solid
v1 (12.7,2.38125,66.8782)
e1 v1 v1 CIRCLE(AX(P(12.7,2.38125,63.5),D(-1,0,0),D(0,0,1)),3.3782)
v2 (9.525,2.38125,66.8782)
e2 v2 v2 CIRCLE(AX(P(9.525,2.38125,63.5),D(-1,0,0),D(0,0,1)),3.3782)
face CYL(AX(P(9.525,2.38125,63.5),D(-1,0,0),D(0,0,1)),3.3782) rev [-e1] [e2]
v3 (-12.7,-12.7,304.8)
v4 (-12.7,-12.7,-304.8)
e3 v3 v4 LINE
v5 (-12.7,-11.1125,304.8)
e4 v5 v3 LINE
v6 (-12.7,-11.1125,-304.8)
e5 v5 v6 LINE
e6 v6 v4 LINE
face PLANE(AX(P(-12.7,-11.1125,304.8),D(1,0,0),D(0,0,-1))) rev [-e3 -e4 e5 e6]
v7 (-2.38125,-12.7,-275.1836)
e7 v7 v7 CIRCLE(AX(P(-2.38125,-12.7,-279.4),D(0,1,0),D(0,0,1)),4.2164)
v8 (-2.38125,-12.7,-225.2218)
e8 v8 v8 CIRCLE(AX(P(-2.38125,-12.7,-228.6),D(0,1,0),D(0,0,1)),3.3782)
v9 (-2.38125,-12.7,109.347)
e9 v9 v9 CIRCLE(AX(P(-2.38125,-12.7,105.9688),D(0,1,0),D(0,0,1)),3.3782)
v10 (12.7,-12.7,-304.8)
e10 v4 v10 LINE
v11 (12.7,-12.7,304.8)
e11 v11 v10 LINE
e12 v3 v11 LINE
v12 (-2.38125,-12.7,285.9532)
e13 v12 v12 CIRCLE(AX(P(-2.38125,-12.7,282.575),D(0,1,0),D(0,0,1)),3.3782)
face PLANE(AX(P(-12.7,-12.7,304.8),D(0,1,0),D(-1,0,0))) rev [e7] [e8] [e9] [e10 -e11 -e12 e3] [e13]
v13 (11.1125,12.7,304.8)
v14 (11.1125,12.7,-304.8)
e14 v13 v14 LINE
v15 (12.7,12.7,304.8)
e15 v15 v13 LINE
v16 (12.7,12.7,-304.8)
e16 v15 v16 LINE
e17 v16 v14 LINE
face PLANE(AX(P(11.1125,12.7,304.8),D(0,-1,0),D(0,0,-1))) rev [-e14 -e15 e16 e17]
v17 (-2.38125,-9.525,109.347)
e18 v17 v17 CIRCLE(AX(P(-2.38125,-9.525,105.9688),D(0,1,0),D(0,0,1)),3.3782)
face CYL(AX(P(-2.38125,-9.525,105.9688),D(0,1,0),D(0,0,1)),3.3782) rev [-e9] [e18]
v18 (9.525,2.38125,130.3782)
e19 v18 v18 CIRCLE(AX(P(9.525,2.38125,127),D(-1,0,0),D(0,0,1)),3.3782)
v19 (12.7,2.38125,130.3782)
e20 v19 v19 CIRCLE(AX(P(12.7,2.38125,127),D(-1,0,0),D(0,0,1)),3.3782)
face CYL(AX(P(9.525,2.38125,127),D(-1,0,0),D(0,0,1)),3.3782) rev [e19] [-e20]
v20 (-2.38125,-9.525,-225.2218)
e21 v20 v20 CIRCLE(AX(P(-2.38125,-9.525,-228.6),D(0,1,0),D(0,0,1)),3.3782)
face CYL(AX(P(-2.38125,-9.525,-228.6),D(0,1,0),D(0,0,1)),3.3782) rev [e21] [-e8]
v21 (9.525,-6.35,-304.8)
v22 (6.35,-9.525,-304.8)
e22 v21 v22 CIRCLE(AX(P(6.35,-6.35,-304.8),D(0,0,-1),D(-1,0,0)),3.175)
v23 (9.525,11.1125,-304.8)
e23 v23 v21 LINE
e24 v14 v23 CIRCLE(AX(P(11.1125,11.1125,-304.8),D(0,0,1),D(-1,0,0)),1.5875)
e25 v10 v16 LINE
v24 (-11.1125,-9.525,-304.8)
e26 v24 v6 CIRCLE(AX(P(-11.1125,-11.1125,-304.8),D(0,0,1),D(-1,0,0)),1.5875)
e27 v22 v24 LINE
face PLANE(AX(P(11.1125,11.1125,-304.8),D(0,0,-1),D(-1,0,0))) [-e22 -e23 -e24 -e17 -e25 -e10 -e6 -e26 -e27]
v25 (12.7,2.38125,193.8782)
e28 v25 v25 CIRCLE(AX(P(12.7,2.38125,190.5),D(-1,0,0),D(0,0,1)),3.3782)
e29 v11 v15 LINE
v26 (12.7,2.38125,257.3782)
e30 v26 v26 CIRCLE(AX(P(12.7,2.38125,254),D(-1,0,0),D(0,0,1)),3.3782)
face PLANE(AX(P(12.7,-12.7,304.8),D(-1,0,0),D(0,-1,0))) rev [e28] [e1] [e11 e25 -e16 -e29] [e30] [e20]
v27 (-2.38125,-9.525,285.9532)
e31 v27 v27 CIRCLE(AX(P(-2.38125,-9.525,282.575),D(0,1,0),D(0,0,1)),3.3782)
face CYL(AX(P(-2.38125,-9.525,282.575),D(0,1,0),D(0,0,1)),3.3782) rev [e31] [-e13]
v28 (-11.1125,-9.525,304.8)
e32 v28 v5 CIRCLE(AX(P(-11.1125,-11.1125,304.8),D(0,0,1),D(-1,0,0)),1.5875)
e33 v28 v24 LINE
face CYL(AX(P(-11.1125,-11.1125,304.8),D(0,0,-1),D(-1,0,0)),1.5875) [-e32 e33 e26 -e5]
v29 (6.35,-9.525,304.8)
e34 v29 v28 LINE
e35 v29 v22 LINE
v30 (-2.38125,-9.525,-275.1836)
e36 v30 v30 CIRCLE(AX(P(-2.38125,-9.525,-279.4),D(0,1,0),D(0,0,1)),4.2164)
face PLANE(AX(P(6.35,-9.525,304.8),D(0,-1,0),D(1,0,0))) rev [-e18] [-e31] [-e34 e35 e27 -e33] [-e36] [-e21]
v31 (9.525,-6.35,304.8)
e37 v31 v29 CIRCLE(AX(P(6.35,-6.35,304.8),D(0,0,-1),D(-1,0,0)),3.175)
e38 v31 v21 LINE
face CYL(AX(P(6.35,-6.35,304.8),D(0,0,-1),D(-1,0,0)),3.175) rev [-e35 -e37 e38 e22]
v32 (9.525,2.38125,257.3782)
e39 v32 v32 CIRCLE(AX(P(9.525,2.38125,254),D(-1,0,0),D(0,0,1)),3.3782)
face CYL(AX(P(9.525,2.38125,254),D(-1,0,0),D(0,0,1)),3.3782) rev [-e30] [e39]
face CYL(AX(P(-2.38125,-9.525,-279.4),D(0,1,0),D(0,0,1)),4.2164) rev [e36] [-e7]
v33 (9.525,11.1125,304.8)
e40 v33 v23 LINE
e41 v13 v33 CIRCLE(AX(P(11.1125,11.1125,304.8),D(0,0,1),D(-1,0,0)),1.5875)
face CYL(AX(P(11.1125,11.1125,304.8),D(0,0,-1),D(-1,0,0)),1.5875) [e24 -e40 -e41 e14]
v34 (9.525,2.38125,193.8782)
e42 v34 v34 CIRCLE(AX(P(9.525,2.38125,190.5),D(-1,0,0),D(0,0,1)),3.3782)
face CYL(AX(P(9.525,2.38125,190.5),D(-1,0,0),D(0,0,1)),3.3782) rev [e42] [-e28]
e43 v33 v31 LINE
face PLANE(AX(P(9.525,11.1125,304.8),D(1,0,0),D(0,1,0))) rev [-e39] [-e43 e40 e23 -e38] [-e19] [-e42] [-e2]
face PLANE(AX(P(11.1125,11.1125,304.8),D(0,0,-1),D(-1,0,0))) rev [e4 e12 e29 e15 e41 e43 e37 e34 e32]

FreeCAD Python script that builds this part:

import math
import FreeCAD as App
import Part
import Sketcher
Q = App.Units.Quantity

doc = App.newDocument("Part")
params = doc.addObject("Spreadsheet::Sheet", "Params")
for row, (alias, value) in enumerate([
    ("sketch1_width", "1 in"),
    ("sketch1_radius", "0.0625 in"),
    ("sketch1_radius2", "0.125 in"),
    ("pad1_length", "24 in"),
    ("sketch2_diameter", "0.266 in"),
    ("hole_diameter", "0.266 in"),
    ("sketch3_diameter", "0.266 in"),
    ("hole2_diameter", "0.266 in"),
    ("sketch4_diameter", "0.332 in"),
    ("hole3_diameter", "0.332 in"),
], start=1):
    params.set(f"A{row}", alias)
    params.set(f"B{row}", "=" + value)
    params.setAlias(f"B{row}", alias)

body = doc.addObject("PartDesign::Body", "Body")

sketch1 = body.newObject("Sketcher::SketchObject", "Sketch")
sketch1.AttachmentSupport = (doc.getObject("XY_Plane"), [""])
sketch1.MapMode = "FlatFace"
sketch1.addGeometry([
    Part.LineSegment(App.Vector(-12.7, -12.7, 0), App.Vector(12.7, -12.7, 0)),
    Part.LineSegment(App.Vector(12.7, -12.7, 0), App.Vector(12.7, 12.7, 0)),
    Part.LineSegment(App.Vector(12.7, 12.7, 0), App.Vector(11.1125, 12.7, 0)),
    Part.ArcOfCircle(Part.Circle(App.Vector(11.1125, 11.1125, 0), App.Vector(0, 0, 1), 1.5875), math.radians(90), math.radians(180)),
    Part.LineSegment(App.Vector(9.525, 11.1125, 0), App.Vector(9.525, -6.35, 0)),
    Part.ArcOfCircle(Part.Circle(App.Vector(6.35, -6.35, 0), App.Vector(0, 0, 1), 3.175), math.radians(-90), math.radians(0)),
    Part.LineSegment(App.Vector(6.35, -9.525, 0), App.Vector(-11.1125, -9.525, 0)),
    Part.ArcOfCircle(Part.Circle(App.Vector(-11.1125, -11.1125, 0), App.Vector(0, 0, 1), 1.5875), math.radians(90), math.radians(180)),
    Part.LineSegment(App.Vector(-12.7, -11.1125, 0), App.Vector(-12.7, -12.7, 0)),
], False)
sketch1.addConstraint([
    Sketcher.Constraint("Coincident", 0, 2, 1, 1),
    Sketcher.Constraint("Coincident", 1, 2, 2, 1),
    Sketcher.Constraint("Tangent", 2, 2, 3, 1),
    Sketcher.Constraint("Tangent", 3, 2, 4, 1),
    Sketcher.Constraint("Tangent", 4, 2, 5, 2),
    Sketcher.Constraint("Tangent", 5, 1, 6, 1),
    Sketcher.Constraint("Tangent", 6, 2, 7, 1),
    Sketcher.Constraint("Tangent", 7, 2, 8, 1),
    Sketcher.Constraint("Coincident", 8, 2, 0, 1),
    Sketcher.Constraint("Horizontal", 0),
    Sketcher.Constraint("Vertical", 1),
    Sketcher.Constraint("Horizontal", 2),
    Sketcher.Constraint("Vertical", 4),
    Sketcher.Constraint("Horizontal", 6),
    Sketcher.Constraint("Vertical", 8),
    Sketcher.Constraint("Equal", 3, 7),
    Sketcher.Constraint("Symmetric", 3, 3, 7, 3, -1, 1),
    Sketcher.Constraint("Symmetric", 1, 2, 8, 2, -1, 1),
    Sketcher.Constraint("Equal", 0, 1),
    Sketcher.Constraint("DistanceX", 0, 1, 0, 2, Q("1 in")),
    Sketcher.Constraint("Radius", 3, Q("0.0625 in")),
    Sketcher.Constraint("Radius", 5, Q("0.125 in")),
])
sketch1.setExpression("Constraints[19]", "Params.sketch1_width")
sketch1.setExpression("Constraints[20]", "Params.sketch1_radius")
sketch1.setExpression("Constraints[21]", "Params.sketch1_radius2")
pad1 = body.newObject("PartDesign::Pad", "Pad")
pad1.Profile = sketch1
pad1.setExpression("Length", "Params.pad1_length")
pad1.Midplane = True

sketch2 = body.newObject("Sketcher::SketchObject", "Sketch001")
sketch2.AttachmentSupport = (doc.getObject("XZ_Plane"), [""])
sketch2.MapMode = "FlatFace"
sketch2.AttachmentOffset = App.Placement(App.Vector(0, 0, 0.375 * 25.4), App.Rotation())
sketch2.addGeometry([
    Part.Circle(App.Vector(-2.38125, 282.575, 0), App.Vector(0, 0, 1), 3.3782),
    Part.Circle(App.Vector(-2.38125, -228.6, 0), App.Vector(0, 0, 1), 3.3782),
    Part.Circle(App.Vector(-2.38125, 105.9688, 0), App.Vector(0, 0, 1), 3.3782),
], False)
sketch2.addConstraint([
    Sketcher.Constraint("Equal", 0, 1),
    Sketcher.Constraint("Equal", 1, 2),
    Sketcher.Constraint("Vertical", 0, 3, 1, 3),
    Sketcher.Constraint("Vertical", 1, 3, 2, 3),
    Sketcher.Constraint("Diameter", 0, Q("0.266 in")),
    Sketcher.Constraint("DistanceY", 1, 3, -1, 1, Q("9 in")),
    Sketcher.Constraint("DistanceX", 0, 3, -1, 1, Q("0.09375 in")),
    Sketcher.Constraint("DistanceY", -1, 1, 0, 3, Q("11.125 in")),
    Sketcher.Constraint("DistanceY", -1, 1, 2, 3, Q("4.172 in")),
])
sketch2.setExpression("Constraints[4]", "Params.sketch2_diameter")
doc.recompute()
hole = body.newObject("PartDesign::Hole", "Hole")
hole.Profile = sketch2
hole.ThreadType = "None"
hole.setExpression("Diameter", "Params.hole_diameter")
hole.DepthType = "ThroughAll"
hole.Reversed = True

sketch3 = body.newObject("Sketcher::SketchObject", "Sketch002")
sketch3.AttachmentSupport = (doc.getObject("YZ_Plane"), [""])
sketch3.MapMode = "FlatFace"
sketch3.AttachmentOffset = App.Placement(App.Vector(0, 0, 0.375 * 25.4), App.Rotation())
sketch3.addGeometry([
    Part.Circle(App.Vector(2.38125, 254, 0), App.Vector(0, 0, 1), 3.3782),
    Part.Circle(App.Vector(2.38125, 190.5, 0), App.Vector(0, 0, 1), 3.3782),
    Part.Circle(App.Vector(2.38125, 127, 0), App.Vector(0, 0, 1), 3.3782),
    Part.Circle(App.Vector(2.38125, 63.5, 0), App.Vector(0, 0, 1), 3.3782),
], False)
sketch3.addConstraint([
    Sketcher.Constraint("Equal", 0, 1),
    Sketcher.Constraint("Equal", 1, 2),
    Sketcher.Constraint("Equal", 2, 3),
    Sketcher.Constraint("Vertical", 0, 3, 1, 3),
    Sketcher.Constraint("Vertical", 1, 3, 2, 3),
    Sketcher.Constraint("Vertical", 2, 3, 3, 3),
    Sketcher.Constraint("Diameter", 0, Q("0.266 in")),
    Sketcher.Constraint("DistanceY", -1, 1, 0, 3, Q("10 in")),
    Sketcher.Constraint("DistanceY", -1, 1, 2, 3, Q("5 in")),
    Sketcher.Constraint("DistanceY", 3, 3, 1, 3, Q("5 in")),
    Sketcher.Constraint("DistanceY", -1, 1, 1, 3, Q("7.5 in")),
    Sketcher.Constraint("DistanceX", -1, 1, 0, 3, Q("0.09375 in")),
])
sketch3.setExpression("Constraints[6]", "Params.sketch3_diameter")
doc.recompute()
hole2 = body.newObject("PartDesign::Hole", "Hole001")
hole2.Profile = sketch3
hole2.ThreadType = "None"
hole2.setExpression("Diameter", "Params.hole2_diameter")
hole2.DepthType = "ThroughAll"
hole2.Reversed = True

sketch4 = body.newObject("Sketcher::SketchObject", "Sketch003")
sketch4.AttachmentSupport = (doc.getObject("XZ_Plane"), [""])
sketch4.MapMode = "FlatFace"
sketch4.AttachmentOffset = App.Placement(App.Vector(0, 0, 0.375 * 25.4), App.Rotation())
sketch4.addGeometry(Part.Circle(App.Vector(-2.38125, -279.4, 0), App.Vector(0, 0, 1), 4.2164), False)
sketch4.addConstraint([
    Sketcher.Constraint("Diameter", 0, Q("0.332 in")),
    Sketcher.Constraint("DistanceY", 0, 3, -1, 1, Q("11 in")),
    Sketcher.Constraint("DistanceX", 0, 3, -1, 1, Q("0.09375 in")),
])
sketch4.setExpression("Constraints[0]", "Params.sketch4_diameter")
doc.recompute()
hole3 = body.newObject("PartDesign::Hole", "Hole002")
hole3.Profile = sketch4
hole3.ThreadType = "None"
hole3.setExpression("Diameter", "Params.hole3_diameter")
hole3.DepthType = "ThroughAll"
hole3.Reversed = True

doc.recompute()
